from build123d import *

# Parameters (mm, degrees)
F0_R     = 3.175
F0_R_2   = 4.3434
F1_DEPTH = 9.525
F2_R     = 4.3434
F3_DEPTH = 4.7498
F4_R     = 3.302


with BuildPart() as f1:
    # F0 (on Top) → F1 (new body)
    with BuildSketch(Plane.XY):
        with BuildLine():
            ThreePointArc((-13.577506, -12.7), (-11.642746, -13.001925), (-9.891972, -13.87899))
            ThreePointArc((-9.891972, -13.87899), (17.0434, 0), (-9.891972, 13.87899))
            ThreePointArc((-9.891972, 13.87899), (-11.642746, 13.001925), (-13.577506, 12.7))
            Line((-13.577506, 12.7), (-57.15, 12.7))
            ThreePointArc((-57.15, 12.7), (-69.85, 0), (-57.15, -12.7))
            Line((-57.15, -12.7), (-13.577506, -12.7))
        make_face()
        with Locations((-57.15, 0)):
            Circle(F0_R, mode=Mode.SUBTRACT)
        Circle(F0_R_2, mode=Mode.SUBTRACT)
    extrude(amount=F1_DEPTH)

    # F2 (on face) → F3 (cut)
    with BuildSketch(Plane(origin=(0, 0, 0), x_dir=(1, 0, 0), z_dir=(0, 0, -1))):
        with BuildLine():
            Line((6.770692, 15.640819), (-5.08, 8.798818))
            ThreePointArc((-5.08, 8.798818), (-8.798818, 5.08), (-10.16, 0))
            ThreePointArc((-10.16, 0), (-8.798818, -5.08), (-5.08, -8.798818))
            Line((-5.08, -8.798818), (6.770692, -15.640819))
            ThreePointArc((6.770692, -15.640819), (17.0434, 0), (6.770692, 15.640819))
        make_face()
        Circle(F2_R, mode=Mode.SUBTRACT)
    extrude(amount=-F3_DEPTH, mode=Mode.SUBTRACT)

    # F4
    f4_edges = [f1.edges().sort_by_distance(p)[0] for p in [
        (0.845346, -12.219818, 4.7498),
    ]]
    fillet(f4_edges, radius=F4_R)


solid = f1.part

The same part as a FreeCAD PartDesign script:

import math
import FreeCAD as App
import Part
import Sketcher

V = App.Vector
Q = App.Units.Quantity


def edges_at(feature, points):
    """Names of the edges that pass closest to the given points."""
    edges = feature.Shape.Edges
    near = lambda p: min(range(len(edges)), key=lambda i: edges[i].distToShape(Part.Vertex(*p))[0])
    return sorted({f"Edge{near(p) + 1}" for p in points})

doc = App.newDocument("Part")
params = doc.addObject("Spreadsheet::Sheet", "Params")
for row, (alias, value) in enumerate([
    ("sketch1_radius", "0.5 in"),
    ("sketch1_diameter", "0.25 in"),
    ("sketch1_diameter2", "0.342 in"),
    ("sketch1_radius2", "0.671 in"),
    ("pad1_length", "0.375 in"),
    ("sketch2_radius", "0.4 in"),
    ("sketch2_diameter", "0.342 in"),
    ("sketch2_radius2", "0.671 in"),
    ("pocket1_length", "0.187 in"),
    ("fillet_radius", "0.13 in"),
], start=1):
    params.set(f"A{row}", alias)
    params.set(f"B{row}", "=" + value)
    params.setAlias(f"B{row}", alias)

body = doc.addObject("PartDesign::Body", "Body")

sketch1 = doc.addObject("Sketcher::SketchObject", "Sketch")
body.addObject(sketch1)
sketch1.AttachmentSupport = (doc.XY_Plane, [""])
sketch1.MapMode = "FlatFace"
sketch1.addGeometry(Part.ArcOfCircle(Part.Circle(V(-13.6, -19, 0), V(0, 0, 1), 6.3), math.radians(55), math.radians(90)), False)
sketch1.addGeometry(Part.ArcOfCircle(Part.Circle(V(0, 0, 0), V(0, 0, 1), 17), math.radians(-125), math.radians(125)), False)
sketch1.addGeometry(Part.ArcOfCircle(Part.Circle(V(-13.6, 19, 0), V(0, 0, 1), 6.3), math.radians(-90), math.radians(-55)), False)
sketch1.addGeometry(Part.LineSegment(V(-13.6, 12.7, 0), V(-57.1, 12.7, 0)), False)
sketch1.addGeometry(Part.ArcOfCircle(Part.Circle(V(-57.1, 0, 0), V(0, 0, 1), 12.7), math.radians(90), math.radians(270)), False)
sketch1.addGeometry(Part.LineSegment(V(-57.1, -12.7, 0), V(-13.6, -12.7, 0)), False)
sketch1.addGeometry(Part.Circle(V(-57.1, 0, 0), V(0, 0, 1), 3.2), False)
sketch1.addGeometry(Part.Circle(V(0, 0, 0), V(0, 0, 1), 4.3), False)
sketch1.addConstraint(Sketcher.Constraint("Tangent", 0, 1, 1, 1))
sketch1.addConstraint(Sketcher.Constraint("Tangent", 1, 2, 2, 2))
sketch1.addConstraint(Sketcher.Constraint("Tangent", 2, 1, 3, 1))
sketch1.addConstraint(Sketcher.Constraint("Tangent", 3, 2, 4, 1))
sketch1.addConstraint(Sketcher.Constraint("Tangent", 4, 2, 5, 1))
sketch1.addConstraint(Sketcher.Constraint("Tangent", 5, 2, 0, 2))
sketch1.addConstraint(Sketcher.Constraint("Horizontal", 3))
sketch1.addConstraint(Sketcher.Constraint("Horizontal", 5))
sketch1.addConstraint(Sketcher.Constraint("Coincident", 1, 3, -1, 1))
sketch1.addConstraint(Sketcher.Constraint("Coincident", 7, 3, -1, 1))
sketch1.addConstraint(Sketcher.Constraint("Coincident", 6, 3, 4, 3))
sketch1.addConstraint(Sketcher.Constraint("Equal", 0, 2))
sketch1.addConstraint(Sketcher.Constraint("PointOnObject", 4, 3, -1))
sketch1.addConstraint(Sketcher.Constraint("Radius", 4, Q("0.5 in")))
sketch1.addConstraint(Sketcher.Constraint("Diameter", 6, Q("0.25 in")))
sketch1.addConstraint(Sketcher.Constraint("Diameter", 7, Q("0.342 in")))
sketch1.addConstraint(Sketcher.Constraint("Radius", 1, Q("0.671 in")))
sketch1.addConstraint(Sketcher.Constraint("DistanceX", 4, 3, -1, 1, Q("2.25 in")))
sketch1.addConstraint(Sketcher.Constraint("Radius", 0, Q("6.349993 mm")))
sketch1.setExpression("Constraints[13]", "Params.sketch1_radius")
sketch1.setExpression("Constraints[14]", "Params.sketch1_diameter")
sketch1.setExpression("Constraints[15]", "Params.sketch1_diameter2")
sketch1.setExpression("Constraints[16]", "Params.sketch1_radius2")
pad1 = doc.addObject("PartDesign::Pad", "Pad")
body.addObject(pad1)
pad1.Profile = sketch1
pad1.setExpression("Length", "Params.pad1_length")

sketch2 = doc.addObject("Sketcher::SketchObject", "Sketch001")
body.addObject(sketch2)
sketch2.AttachmentSupport = (doc.XY_Plane, [""])
sketch2.MapMode = "FlatFace"
sketch2.addGeometry(Part.LineSegment(V(6.8, -15.6, 0), V(-5.1, -8.8, 0)), False)
sketch2.addGeometry(Part.ArcOfCircle(Part.Circle(V(0, 0, 0), V(0, 0, 1), 10.2), math.radians(-180), math.radians(-120)), False)
sketch2.addGeometry(Part.ArcOfCircle(Part.Circle(V(0, 0, 0), V(0, 0, 1), 10.2), math.radians(120), math.radians(180)), False)
sketch2.addGeometry(Part.LineSegment(V(-5.1, 8.8, 0), V(6.8, 15.6, 0)), False)
sketch2.addGeometry(Part.ArcOfCircle(Part.Circle(V(0, 0, 0), V(0, 0, 1), 17), math.radians(-67), math.radians(67)), False)
sketch2.addGeometry(Part.Circle(V(0, 0, 0), V(0, 0, 1), 4.3), False)
sketch2.addConstraint(Sketcher.Constraint("Tangent", 0, 2, 1, 2))
sketch2.addConstraint(Sketcher.Constraint("Tangent", 1, 1, 2, 2))
sketch2.addConstraint(Sketcher.Constraint("Tangent", 2, 1, 3, 1))
sketch2.addConstraint(Sketcher.Constraint("Coincident", 3, 2, 4, 2))
sketch2.addConstraint(Sketcher.Constraint("Coincident", 4, 1, 0, 1))
sketch2.addConstraint(Sketcher.Constraint("Coincident", 1, 3, -1, 1))
sketch2.addConstraint(Sketcher.Constraint("Coincident", 4, 3, -1, 1))
sketch2.addConstraint(Sketcher.Constraint("Coincident", 5, 3, -1, 1))
sketch2.addConstraint(Sketcher.Constraint("Equal", 1, 2))
sketch2.addConstraint(Sketcher.Constraint("PointOnObject", 1, 1, -1))
sketch2.addConstraint(Sketcher.Constraint("Vertical", 0, 2, 2, 1))
sketch2.addConstraint(Sketcher.Constraint("Radius", 1, Q("0.4 in")))
sketch2.addConstraint(Sketcher.Constraint("Diameter", 5, Q("0.342 in")))
sketch2.addConstraint(Sketcher.Constraint("Angle", 0, Q("149.999997 deg")))
sketch2.addConstraint(Sketcher.Constraint("Radius", 4, Q("0.671 in")))
sketch2.setExpression("Constraints[11]", "Params.sketch2_radius")
sketch2.setExpression("Constraints[12]", "Params.sketch2_diameter")
sketch2.setExpression("Constraints[14]", "Params.sketch2_radius2")
pocket1 = doc.addObject("PartDesign::Pocket", "Pocket")
body.addObject(pocket1)
pocket1.Profile = sketch2
pocket1.setExpression("Length", "Params.pocket1_length")
pocket1.Reversed = True
doc.recompute()

fillet = doc.addObject("PartDesign::Fillet", "Fillet")
body.addObject(fillet)
fillet.Base = (pocket1, edges_at(pocket1, [(0.845, -12.22, 4.75)]))
fillet.setExpression("Radius", "Params.fillet_radius")

doc.recompute()
